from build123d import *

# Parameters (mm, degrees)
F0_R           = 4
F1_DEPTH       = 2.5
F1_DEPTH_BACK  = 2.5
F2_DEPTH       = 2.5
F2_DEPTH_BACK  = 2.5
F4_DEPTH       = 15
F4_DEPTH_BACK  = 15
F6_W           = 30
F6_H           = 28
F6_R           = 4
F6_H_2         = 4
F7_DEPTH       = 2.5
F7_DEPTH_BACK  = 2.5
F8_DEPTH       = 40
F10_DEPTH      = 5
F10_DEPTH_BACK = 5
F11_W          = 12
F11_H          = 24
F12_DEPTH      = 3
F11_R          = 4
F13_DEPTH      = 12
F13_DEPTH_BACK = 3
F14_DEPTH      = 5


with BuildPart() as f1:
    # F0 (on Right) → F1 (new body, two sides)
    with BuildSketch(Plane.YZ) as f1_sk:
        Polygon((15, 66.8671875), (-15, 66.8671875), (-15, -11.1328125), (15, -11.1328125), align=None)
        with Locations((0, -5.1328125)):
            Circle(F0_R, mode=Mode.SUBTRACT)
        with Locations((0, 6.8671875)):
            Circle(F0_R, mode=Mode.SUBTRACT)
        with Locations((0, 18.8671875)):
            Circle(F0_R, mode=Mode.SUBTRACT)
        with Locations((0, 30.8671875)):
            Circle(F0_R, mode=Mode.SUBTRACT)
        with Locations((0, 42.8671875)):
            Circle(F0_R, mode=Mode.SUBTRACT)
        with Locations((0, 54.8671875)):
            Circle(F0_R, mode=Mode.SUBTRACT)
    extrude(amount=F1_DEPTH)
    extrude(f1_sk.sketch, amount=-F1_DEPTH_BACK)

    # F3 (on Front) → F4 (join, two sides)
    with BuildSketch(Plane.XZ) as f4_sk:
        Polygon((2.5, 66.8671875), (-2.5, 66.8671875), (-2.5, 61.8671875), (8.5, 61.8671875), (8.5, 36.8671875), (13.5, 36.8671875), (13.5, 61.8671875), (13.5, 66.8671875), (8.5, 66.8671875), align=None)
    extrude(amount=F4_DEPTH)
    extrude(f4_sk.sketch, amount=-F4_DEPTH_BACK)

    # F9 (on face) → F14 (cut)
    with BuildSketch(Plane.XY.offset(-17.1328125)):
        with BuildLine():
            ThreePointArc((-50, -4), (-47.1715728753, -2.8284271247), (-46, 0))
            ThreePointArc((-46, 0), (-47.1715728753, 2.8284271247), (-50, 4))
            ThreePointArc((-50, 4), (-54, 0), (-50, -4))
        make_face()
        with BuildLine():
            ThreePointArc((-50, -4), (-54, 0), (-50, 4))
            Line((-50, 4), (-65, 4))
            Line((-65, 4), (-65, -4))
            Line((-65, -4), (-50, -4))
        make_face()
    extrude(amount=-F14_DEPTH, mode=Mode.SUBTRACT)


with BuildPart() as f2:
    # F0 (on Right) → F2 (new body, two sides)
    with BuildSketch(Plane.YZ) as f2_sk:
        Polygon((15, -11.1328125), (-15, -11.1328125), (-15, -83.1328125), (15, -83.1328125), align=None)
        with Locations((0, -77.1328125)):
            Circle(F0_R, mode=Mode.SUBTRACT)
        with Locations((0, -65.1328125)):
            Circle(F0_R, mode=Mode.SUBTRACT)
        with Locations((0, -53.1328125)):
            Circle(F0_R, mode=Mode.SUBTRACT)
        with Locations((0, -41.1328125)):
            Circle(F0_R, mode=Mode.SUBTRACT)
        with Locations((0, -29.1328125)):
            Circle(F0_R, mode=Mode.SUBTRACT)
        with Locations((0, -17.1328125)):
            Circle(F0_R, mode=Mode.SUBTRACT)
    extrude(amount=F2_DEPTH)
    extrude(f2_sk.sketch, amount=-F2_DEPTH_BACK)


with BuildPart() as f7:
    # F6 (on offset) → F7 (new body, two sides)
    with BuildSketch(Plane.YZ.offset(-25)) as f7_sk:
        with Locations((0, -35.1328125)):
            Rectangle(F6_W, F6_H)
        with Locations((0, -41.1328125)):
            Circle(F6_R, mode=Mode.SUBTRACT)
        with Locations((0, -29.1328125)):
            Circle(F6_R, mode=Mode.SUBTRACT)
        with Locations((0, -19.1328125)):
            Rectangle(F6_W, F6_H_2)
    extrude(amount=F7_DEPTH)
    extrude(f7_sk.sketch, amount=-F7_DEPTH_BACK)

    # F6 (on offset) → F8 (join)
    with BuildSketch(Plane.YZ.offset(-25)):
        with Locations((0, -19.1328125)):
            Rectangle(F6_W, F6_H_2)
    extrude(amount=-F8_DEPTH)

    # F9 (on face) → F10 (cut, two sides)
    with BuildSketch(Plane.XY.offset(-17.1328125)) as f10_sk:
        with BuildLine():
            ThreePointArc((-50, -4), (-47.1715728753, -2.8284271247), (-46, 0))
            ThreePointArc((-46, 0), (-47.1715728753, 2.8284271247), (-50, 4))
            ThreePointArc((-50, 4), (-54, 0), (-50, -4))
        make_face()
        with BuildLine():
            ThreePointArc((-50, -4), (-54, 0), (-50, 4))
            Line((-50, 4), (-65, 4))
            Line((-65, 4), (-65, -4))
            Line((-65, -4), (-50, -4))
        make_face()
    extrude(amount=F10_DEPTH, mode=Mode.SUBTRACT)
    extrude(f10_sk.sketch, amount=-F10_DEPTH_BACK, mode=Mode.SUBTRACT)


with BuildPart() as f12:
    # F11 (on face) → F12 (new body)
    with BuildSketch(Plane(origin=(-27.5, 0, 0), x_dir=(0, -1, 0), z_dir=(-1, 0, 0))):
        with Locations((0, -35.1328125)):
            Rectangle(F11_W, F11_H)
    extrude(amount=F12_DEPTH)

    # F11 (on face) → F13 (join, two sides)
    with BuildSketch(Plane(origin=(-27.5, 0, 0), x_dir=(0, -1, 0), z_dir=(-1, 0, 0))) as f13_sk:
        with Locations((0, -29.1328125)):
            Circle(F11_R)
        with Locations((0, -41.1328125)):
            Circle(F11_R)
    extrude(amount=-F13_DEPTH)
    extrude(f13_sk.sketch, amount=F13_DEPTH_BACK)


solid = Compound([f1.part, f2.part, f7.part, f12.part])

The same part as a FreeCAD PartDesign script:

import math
import FreeCAD as App
import Part
import Sketcher


def add_polygon(sketch, points):
    """Adds a closed chain of lines whose ends are joined by coincident constraints."""
    first, n = sketch.GeometryCount, len(points)
    for a, b in zip(points, points[1:] + points[:1]):
        sketch.addGeometry(Part.LineSegment(App.Vector(*a, 0), App.Vector(*b, 0)), False)
    for i in range(n):
        sketch.addConstraint(Sketcher.Constraint("Coincident", first + i, 2, first + (i + 1) % n, 1))

doc = App.newDocument("Part")
body = doc.addObject("PartDesign::Body", "Body")

# Sketch on YZ plane
sketch1 = body.newObject("Sketcher::SketchObject", "Sketch")
sketch1.AttachmentSupport = (doc.getObject("YZ_Plane"), [""])
sketch1.MapMode = "FlatFace"
add_polygon(sketch1, [(15, 66.9), (-15, 66.9), (-15, -11.1), (15, -11.1)])  # lines 0-3
sketch1.addGeometry(Part.Circle(App.Vector(0, -5.1, 0), App.Vector(0, 0, 1), 4), False)  # 4
sketch1.addGeometry(Part.Circle(App.Vector(0, 6.9, 0), App.Vector(0, 0, 1), 4), False)  # 5
sketch1.addGeometry(Part.Circle(App.Vector(0, 18.9, 0), App.Vector(0, 0, 1), 4), False)  # 6
sketch1.addGeometry(Part.Circle(App.Vector(0, 30.9, 0), App.Vector(0, 0, 1), 4), False)  # 7
sketch1.addGeometry(Part.Circle(App.Vector(0, 42.9, 0), App.Vector(0, 0, 1), 4), False)  # 8
sketch1.addGeometry(Part.Circle(App.Vector(0, 54.9, 0), App.Vector(0, 0, 1), 4), False)  # 9
sketch1.addConstraint([
    Sketcher.Constraint("Horizontal", 0),
    Sketcher.Constraint("Vertical", 1),
    Sketcher.Constraint("Horizontal", 2),
    Sketcher.Constraint("Vertical", 3),
    Sketcher.Constraint("Equal", 4, 5),
    Sketcher.Constraint("Equal", 5, 6),
    Sketcher.Constraint("Equal", 6, 7),
    Sketcher.Constraint("Equal", 7, 8),
    Sketcher.Constraint("Equal", 8, 9),
    Sketcher.Constraint("PointOnObject", 4, 3, -2),
    Sketcher.Constraint("PointOnObject", 5, 3, -2),
    Sketcher.Constraint("PointOnObject", 6, 3, -2),
    Sketcher.Constraint("PointOnObject", 7, 3, -2),
    Sketcher.Constraint("PointOnObject", 8, 3, -2),
    Sketcher.Constraint("PointOnObject", 9, 3, -2),
    Sketcher.Constraint("Diameter", 4, 8.0),
    Sketcher.Constraint("DistanceX", 0, 2, 0, 1, 30.0),
    Sketcher.Constraint("DistanceY", 1, 2, 1, 1, 78.0),
    Sketcher.Constraint("DistanceX", 0, 2, -1, 1, 15.0),
    Sketcher.Constraint("DistanceY", 4, 3, 5, 3, 12.0),
    Sketcher.Constraint("DistanceY", 5, 3, 6, 3, 12.0),
    Sketcher.Constraint("DistanceY", 6, 3, 7, 3, 12.0),
    Sketcher.Constraint("DistanceY", 7, 3, 8, 3, 12.0),
    Sketcher.Constraint("DistanceY", 8, 3, 9, 3, 12.0),
    Sketcher.Constraint("DistanceY", 9, 3, 0, 2, 12.0),
    Sketcher.Constraint("DistanceY", 4, 3, -1, 1, 5.132812),
])
pad1 = body.newObject("PartDesign::Pad", "Pad")
pad1.Profile = sketch1
pad1.Type = "TwoLengths"
pad1.Length = 2.5
pad1.Length2 = 2.5

# Sketch on XZ plane
sketch2 = body.newObject("Sketcher::SketchObject", "Sketch001")
sketch2.AttachmentSupport = (doc.getObject("XZ_Plane"), [""])
sketch2.MapMode = "FlatFace"
add_polygon(sketch2, [(-2, 67), (-2, 62), (8, 62), (8, 37), (14, 37), (14, 67)])  # lines 0-5
sketch2.addConstraint([
    Sketcher.Constraint("Vertical", 0),
    Sketcher.Constraint("Horizontal", 1),
    Sketcher.Constraint("Vertical", 2),
    Sketcher.Constraint("Horizontal", 3),
    Sketcher.Constraint("Vertical", 4),
    Sketcher.Constraint("Horizontal", 5),
    Sketcher.Constraint("Equal", 3, 0),
    Sketcher.Constraint("DistanceX", 1, 1, 1, 2, 11.0),
    Sketcher.Constraint("DistanceX", 3, 1, 3, 2, 5.0),
    Sketcher.Constraint("DistanceY", 2, 2, 2, 1, 25.0),
    Sketcher.Constraint("DistanceX", 0, 2, -1, 1, 2.5),
    Sketcher.Constraint("DistanceY", -1, 1, 0, 2, 61.867188),
])
pad2 = body.newObject("PartDesign::Pad", "Pad001")
pad2.Profile = sketch2
pad2.Type = "TwoLengths"
pad2.Length = 15
pad2.Length2 = 15

# Sketch on XY plane
sketch3 = body.newObject("Sketcher::SketchObject", "Sketch002")
sketch3.AttachmentSupport = (doc.getObject("XY_Plane"), [""])
sketch3.MapMode = "FlatFace"
sketch3.AttachmentOffset = App.Placement(App.Vector(0, 0, -17.132812), App.Rotation())
sketch3.addGeometry([
    Part.ArcOfCircle(Part.Circle(App.Vector(-50, 0, 0), App.Vector(0, 0, 1), 4), math.radians(-90), math.radians(0)),  # 0
    Part.ArcOfCircle(Part.Circle(App.Vector(-50, 0, 0), App.Vector(0, 0, 1), 4), math.radians(0), math.radians(90)),  # 1
    Part.LineSegment(App.Vector(-50, 4, 0), App.Vector(-65, 4, 0)),  # 2
    Part.LineSegment(App.Vector(-65, 4, 0), App.Vector(-65, -4, 0)),  # 3
    Part.LineSegment(App.Vector(-65, -4, 0), App.Vector(-50, -4, 0)),  # 4
], False)
sketch3.addConstraint([
    Sketcher.Constraint("Tangent", 0, 2, 1, 1),
    Sketcher.Constraint("Tangent", 1, 2, 2, 1),
    Sketcher.Constraint("Coincident", 2, 2, 3, 1),
    Sketcher.Constraint("Coincident", 3, 2, 4, 1),
    Sketcher.Constraint("Tangent", 4, 2, 0, 1),
    Sketcher.Constraint("Horizontal", 2),
    Sketcher.Constraint("Vertical", 3),
    Sketcher.Constraint("Horizontal", 4),
    Sketcher.Constraint("Equal", 0, 1),
    Sketcher.Constraint("PointOnObject", 0, 3, -1),
    Sketcher.Constraint("PointOnObject", 0, 2, -1),
    Sketcher.Constraint("Radius", 0, 4.0),
    Sketcher.Constraint("DistanceX", 2, 2, 2, 1, 15.0),
    Sketcher.Constraint("DistanceX", 0, 3, -1, 1, 50.0),
])
pocket1 = body.newObject("PartDesign::Pocket", "Pocket")
pocket1.Profile = sketch3
pocket1.Length = 5
body2 = doc.addObject("PartDesign::Body", "Body001")

# Sketch on YZ plane
sketch4 = body2.newObject("Sketcher::SketchObject", "Sketch003")
sketch4.AttachmentSupport = (doc.getObject("YZ_Plane001"), [""])
sketch4.MapMode = "FlatFace"
add_polygon(sketch4, [(15, -11.1), (-15, -11.1), (-15, -83.1), (15, -83.1)])  # lines 0-3
sketch4.addGeometry(Part.Circle(App.Vector(0, -77.1, 0), App.Vector(0, 0, 1), 4), False)  # 4
sketch4.addGeometry(Part.Circle(App.Vector(0, -65.1, 0), App.Vector(0, 0, 1), 4), False)  # 5
sketch4.addGeometry(Part.Circle(App.Vector(0, -53.1, 0), App.Vector(0, 0, 1), 4), False)  # 6
sketch4.addGeometry(Part.Circle(App.Vector(0, -41.1, 0), App.Vector(0, 0, 1), 4), False)  # 7
sketch4.addGeometry(Part.Circle(App.Vector(0, -29.1, 0), App.Vector(0, 0, 1), 4), False)  # 8
sketch4.addGeometry(Part.Circle(App.Vector(0, -17.1, 0), App.Vector(0, 0, 1), 4), False)  # 9
sketch4.addConstraint([
    Sketcher.Constraint("Horizontal", 0),
    Sketcher.Constraint("Vertical", 1),
    Sketcher.Constraint("Horizontal", 2),
    Sketcher.Constraint("Vertical", 3),
    Sketcher.Constraint("Equal", 4, 5),
    Sketcher.Constraint("Equal", 5, 6),
    Sketcher.Constraint("Equal", 6, 7),
    Sketcher.Constraint("Equal", 7, 8),
    Sketcher.Constraint("Equal", 8, 9),
    Sketcher.Constraint("PointOnObject", 4, 3, -2),
    Sketcher.Constraint("PointOnObject", 5, 3, -2),
    Sketcher.Constraint("PointOnObject", 6, 3, -2),
    Sketcher.Constraint("PointOnObject", 7, 3, -2),
    Sketcher.Constraint("PointOnObject", 8, 3, -2),
    Sketcher.Constraint("PointOnObject", 9, 3, -2),
    Sketcher.Constraint("Diameter", 4, 8.0),
    Sketcher.Constraint("DistanceX", 0, 2, 0, 1, 30.0),
    Sketcher.Constraint("DistanceY", 1, 2, 1, 1, 72.0),
    Sketcher.Constraint("DistanceX", 0, 2, -1, 1, 15.0),
    Sketcher.Constraint("DistanceY", 4, 3, 5, 3, 12.0),
    Sketcher.Constraint("DistanceY", 5, 3, 6, 3, 12.0),
    Sketcher.Constraint("DistanceY", 6, 3, 7, 3, 12.0),
    Sketcher.Constraint("DistanceY", 7, 3, 8, 3, 12.0),
    Sketcher.Constraint("DistanceY", 8, 3, 9, 3, 12.0),
    Sketcher.Constraint("DistanceY", 9, 3, 0, 2, 6.0),
    Sketcher.Constraint("DistanceY", 4, 3, -1, 1, 77.132812),
])
pad3 = body2.newObject("PartDesign::Pad", "Pad002")
pad3.Profile = sketch4
pad3.Type = "TwoLengths"
pad3.Length = 2.5
pad3.Length2 = 2.5
body3 = doc.addObject("PartDesign::Body", "Body002")

# Sketch on YZ plane
sketch5 = body3.newObject("Sketcher::SketchObject", "Sketch004")
sketch5.AttachmentSupport = (doc.getObject("YZ_Plane002"), [""])
sketch5.MapMode = "FlatFace"
sketch5.AttachmentOffset = App.Placement(App.Vector(0, 0, -25), App.Rotation())
add_polygon(sketch5, [(-15, -49.1), (15, -49.1), (15, -17.1), (-15, -17.1)])  # lines 0-3
sketch5.addGeometry(Part.Circle(App.Vector(0, -41.1, 0), App.Vector(0, 0, 1), 4), False)  # 4
sketch5.addGeometry(Part.Circle(App.Vector(0, -29.1, 0), App.Vector(0, 0, 1), 4), False)  # 5
sketch5.addConstraint([
    Sketcher.Constraint("Horizontal", 0),
    Sketcher.Constraint("Vertical", 1),
    Sketcher.Constraint("Horizontal", 2),
    Sketcher.Constraint("Vertical", 3),
    Sketcher.Constraint("Equal", 4, 5),
    Sketcher.Constraint("PointOnObject", 4, 3, -2),
    Sketcher.Constraint("PointOnObject", 5, 3, -2),
    Sketcher.Constraint("Diameter", 4, 8.0),
    Sketcher.Constraint("DistanceX", 0, 1, 0, 2, 30.0),
    Sketcher.Constraint("DistanceY", 1, 1, 1, 2, 32.0),
    Sketcher.Constraint("DistanceX", -1, 1, 0, 2, 15.0),
    Sketcher.Constraint("DistanceY", 4, 3, 5, 3, 12.0),
    Sketcher.Constraint("DistanceY", 0, 2, 4, 3, 8.0),
    Sketcher.Constraint("DistanceY", 4, 3, -1, 1, 41.132812),
])
pad4 = body3.newObject("PartDesign::Pad", "Pad003")
pad4.Profile = sketch5
pad4.Type = "TwoLengths"
pad4.Length = 2.5
pad4.Length2 = 2.5

# Sketch on YZ plane
sketch6 = body3.newObject("Sketcher::SketchObject", "Sketch005")
sketch6.AttachmentSupport = (doc.getObject("YZ_Plane002"), [""])
sketch6.MapMode = "FlatFace"
sketch6.AttachmentOffset = App.Placement(App.Vector(0, 0, -25), App.Rotation())
add_polygon(sketch6, [(-15, -17.1), (-15, -21.1), (15, -21.1), (15, -17.1)])  # lines 0-3
sketch6.addConstraint([
    Sketcher.Constraint("Vertical", 0),
    Sketcher.Constraint("Horizontal", 1),
    Sketcher.Constraint("Vertical", 2),
    Sketcher.Constraint("Horizontal", 3),
    Sketcher.Constraint("DistanceX", 1, 1, 1, 2, 30.0),
    Sketcher.Constraint("DistanceY", 0, 2, 0, 1, 4.0),
    Sketcher.Constraint("DistanceX", 0, 2, -1, 1, 15.0),
    Sketcher.Constraint("DistanceY", 0, 2, -1, 1, 21.132812),
])
pad5 = body3.newObject("PartDesign::Pad", "Pad004")
pad5.Profile = sketch6
pad5.Length = 40
pad5.Reversed = True

# Sketch on XY plane
sketch7 = body3.newObject("Sketcher::SketchObject", "Sketch006")
sketch7.AttachmentSupport = (doc.getObject("XY_Plane002"), [""])
sketch7.MapMode = "FlatFace"
sketch7.AttachmentOffset = App.Placement(App.Vector(0, 0, -17.132812), App.Rotation())
sketch7.addGeometry([
    Part.ArcOfCircle(Part.Circle(App.Vector(-50, 0, 0), App.Vector(0, 0, 1), 4), math.radians(-90), math.radians(0)),  # 0
    Part.ArcOfCircle(Part.Circle(App.Vector(-50, 0, 0), App.Vector(0, 0, 1), 4), math.radians(0), math.radians(90)),  # 1
    Part.LineSegment(App.Vector(-50, 4, 0), App.Vector(-65, 4, 0)),  # 2
    Part.LineSegment(App.Vector(-65, 4, 0), App.Vector(-65, -4, 0)),  # 3
    Part.LineSegment(App.Vector(-65, -4, 0), App.Vector(-50, -4, 0)),  # 4
], False)
sketch7.addConstraint([
    Sketcher.Constraint("Tangent", 0, 2, 1, 1),
    Sketcher.Constraint("Tangent", 1, 2, 2, 1),
    Sketcher.Constraint("Coincident", 2, 2, 3, 1),
    Sketcher.Constraint("Coincident", 3, 2, 4, 1),
    Sketcher.Constraint("Tangent", 4, 2, 0, 1),
    Sketcher.Constraint("Horizontal", 2),
    Sketcher.Constraint("Vertical", 3),
    Sketcher.Constraint("Horizontal", 4),
    Sketcher.Constraint("Equal", 0, 1),
    Sketcher.Constraint("PointOnObject", 0, 3, -1),
    Sketcher.Constraint("PointOnObject", 0, 2, -1),
    Sketcher.Constraint("Radius", 0, 4.0),
    Sketcher.Constraint("DistanceX", 2, 2, 2, 1, 15.0),
    Sketcher.Constraint("DistanceX", 0, 3, -1, 1, 50.0),
])
pocket2 = body3.newObject("PartDesign::Pocket", "Pocket001")
pocket2.Profile = sketch7
pocket2.Type = "ThroughAll"
pocket2.Midplane = True
body4 = doc.addObject("PartDesign::Body", "Body003")

# Sketch on YZ plane
sketch8 = body4.newObject("Sketcher::SketchObject", "Sketch007")
sketch8.AttachmentSupport = (doc.getObject("YZ_Plane003"), [""])
sketch8.MapMode = "FlatFace"
sketch8.AttachmentOffset = App.Placement(App.Vector(0, 0, -27.5), App.Rotation())
add_polygon(sketch8, [(6, -23), (6, -47), (-6, -47), (-6, -23)])  # lines 0-3
sketch8.addConstraint([
    Sketcher.Constraint("Vertical", 0),
    Sketcher.Constraint("Horizontal", 1),
    Sketcher.Constraint("Vertical", 2),
    Sketcher.Constraint("Horizontal", 3),
    Sketcher.Constraint("DistanceX", 1, 2, 1, 1, 12.0),
    Sketcher.Constraint("DistanceY", 0, 2, 0, 1, 24.0),
    Sketcher.Constraint("DistanceX", -1, 1, 0, 2, 6.0),
    Sketcher.Constraint("DistanceY", 0, 2, -1, 1, 47.132812),
])
pad6 = body4.newObject("PartDesign::Pad", "Pad005")
pad6.Profile = sketch8
pad6.Length = 3
pad6.Reversed = True

# Sketch on YZ plane
sketch9 = body4.newObject("Sketcher::SketchObject", "Sketch008")
sketch9.AttachmentSupport = (doc.getObject("YZ_Plane003"), [""])
sketch9.MapMode = "FlatFace"
sketch9.AttachmentOffset = App.Placement(App.Vector(0, 0, -27.5), App.Rotation())
sketch9.addGeometry([
    Part.Circle(App.Vector(0, -29.1, 0), App.Vector(0, 0, 1), 4),
    Part.Circle(App.Vector(0, -41.1, 0), App.Vector(0, 0, 1), 4),
], False)
sketch9.addConstraint([
    Sketcher.Constraint("Equal", 0, 1),
    Sketcher.Constraint("PointOnObject", 0, 3, -2),
    Sketcher.Constraint("PointOnObject", 1, 3, -2),
    Sketcher.Constraint("Diameter", 0, 8.0),
    Sketcher.Constraint("DistanceY", 1, 3, 0, 3, 12.0),
    Sketcher.Constraint("DistanceY", 0, 3, -1, 1, 29.132812),
])
pad7 = body4.newObject("PartDesign::Pad", "Pad006")
pad7.Profile = sketch9
pad7.Type = "TwoLengths"
pad7.Length = 12
pad7.Length2 = 3

doc.recompute()
